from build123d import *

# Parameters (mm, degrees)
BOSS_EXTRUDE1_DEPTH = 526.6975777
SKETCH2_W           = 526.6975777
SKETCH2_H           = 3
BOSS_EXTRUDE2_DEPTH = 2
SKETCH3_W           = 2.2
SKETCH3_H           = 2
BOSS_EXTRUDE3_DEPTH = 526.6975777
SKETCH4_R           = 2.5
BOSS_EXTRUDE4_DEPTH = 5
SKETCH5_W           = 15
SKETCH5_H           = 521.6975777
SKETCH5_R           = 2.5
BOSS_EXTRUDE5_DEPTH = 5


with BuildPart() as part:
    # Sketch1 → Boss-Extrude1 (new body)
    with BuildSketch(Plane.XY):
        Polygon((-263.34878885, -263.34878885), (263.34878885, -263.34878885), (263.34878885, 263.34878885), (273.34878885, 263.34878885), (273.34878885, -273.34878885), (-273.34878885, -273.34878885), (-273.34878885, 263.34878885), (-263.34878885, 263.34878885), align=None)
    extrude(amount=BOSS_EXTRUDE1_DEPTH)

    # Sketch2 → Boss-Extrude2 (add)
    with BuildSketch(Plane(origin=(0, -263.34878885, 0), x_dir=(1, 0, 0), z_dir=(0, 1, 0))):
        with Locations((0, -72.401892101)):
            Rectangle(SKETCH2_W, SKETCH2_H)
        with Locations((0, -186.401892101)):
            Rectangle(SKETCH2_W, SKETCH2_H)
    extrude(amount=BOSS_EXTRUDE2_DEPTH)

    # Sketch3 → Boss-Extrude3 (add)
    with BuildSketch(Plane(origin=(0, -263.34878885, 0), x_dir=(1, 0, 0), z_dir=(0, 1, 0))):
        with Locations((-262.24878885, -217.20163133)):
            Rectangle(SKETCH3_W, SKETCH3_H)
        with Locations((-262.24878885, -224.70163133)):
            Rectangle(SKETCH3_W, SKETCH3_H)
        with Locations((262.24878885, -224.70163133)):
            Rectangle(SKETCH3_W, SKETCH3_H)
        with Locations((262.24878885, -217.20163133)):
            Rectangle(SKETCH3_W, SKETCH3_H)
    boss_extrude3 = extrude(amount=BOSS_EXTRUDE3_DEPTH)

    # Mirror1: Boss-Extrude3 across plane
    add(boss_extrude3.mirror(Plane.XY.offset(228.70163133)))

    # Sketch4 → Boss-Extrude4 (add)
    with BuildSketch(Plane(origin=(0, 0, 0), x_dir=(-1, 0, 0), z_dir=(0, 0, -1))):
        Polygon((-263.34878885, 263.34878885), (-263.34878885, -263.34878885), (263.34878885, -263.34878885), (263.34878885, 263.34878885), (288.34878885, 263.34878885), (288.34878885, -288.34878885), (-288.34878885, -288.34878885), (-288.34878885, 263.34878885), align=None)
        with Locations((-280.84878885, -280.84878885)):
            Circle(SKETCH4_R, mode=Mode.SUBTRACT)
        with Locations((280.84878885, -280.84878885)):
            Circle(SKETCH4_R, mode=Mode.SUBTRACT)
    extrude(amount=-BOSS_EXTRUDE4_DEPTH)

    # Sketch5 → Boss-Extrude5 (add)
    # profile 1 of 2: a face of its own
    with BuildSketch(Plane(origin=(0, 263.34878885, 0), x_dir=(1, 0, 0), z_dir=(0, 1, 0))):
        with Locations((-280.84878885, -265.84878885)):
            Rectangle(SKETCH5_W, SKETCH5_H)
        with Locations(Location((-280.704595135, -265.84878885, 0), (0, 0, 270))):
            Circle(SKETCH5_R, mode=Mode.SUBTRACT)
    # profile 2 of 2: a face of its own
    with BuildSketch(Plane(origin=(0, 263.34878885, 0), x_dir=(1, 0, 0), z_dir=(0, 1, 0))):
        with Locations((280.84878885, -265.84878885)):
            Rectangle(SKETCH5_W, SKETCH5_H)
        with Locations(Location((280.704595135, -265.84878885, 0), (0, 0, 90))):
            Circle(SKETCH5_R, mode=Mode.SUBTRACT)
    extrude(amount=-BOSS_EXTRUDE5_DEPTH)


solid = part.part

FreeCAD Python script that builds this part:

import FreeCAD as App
import Part
import Sketcher
from FreeCAD import Vector
Q = App.Units.Quantity


def add_polygon(sketch, points):
    """Adds a closed chain of lines whose ends are joined by coincident constraints."""
    first, n = sketch.GeometryCount, len(points)
    for a, b in zip(points, points[1:] + points[:1]):
        sketch.addGeometry(Part.LineSegment(App.Vector(*a, 0), App.Vector(*b, 0)), False)
    for i in range(n):
        sketch.addConstraint(Sketcher.Constraint("Coincident", first + i, 2, first + (i + 1) % n, 1))

doc = App.newDocument("Part")
body = doc.addObject("PartDesign::Body", "Body")

# Sketch on XY plane
sketch1 = doc.addObject("Sketcher::SketchObject", "Sketch")
body.addObject(sketch1)
sketch1.AttachmentSupport = (doc.XY_Plane, [""])
sketch1.MapMode = "FlatFace"
add_polygon(sketch1, [(263.348789, -263.348789), (-263.348789, -263.348789), (-263.348789, 263.348789), (-273.348789, 263.348789), (-273.348789, -273.348789), (273.348789, -273.348789), (273.348789, 263.348789), (263.348789, 263.348789)])  # lines 0-7
sketch1.addConstraint(Sketcher.Constraint("Horizontal", 0))
sketch1.addConstraint(Sketcher.Constraint("Vertical", 1))
sketch1.addConstraint(Sketcher.Constraint("Horizontal", 2))
sketch1.addConstraint(Sketcher.Constraint("Vertical", 3))
sketch1.addConstraint(Sketcher.Constraint("Horizontal", 4))
sketch1.addConstraint(Sketcher.Constraint("Vertical", 5))
sketch1.addConstraint(Sketcher.Constraint("Horizontal", 6))
sketch1.addConstraint(Sketcher.Constraint("Vertical", 7))
sketch1.addConstraint(Sketcher.Constraint("Symmetric", 0, 2, 6, 2, -1, 1))
sketch1.addConstraint(Sketcher.Constraint("Symmetric", 2, 2, 5, 2, -2))
sketch1.addConstraint(Sketcher.Constraint("Equal", 0, 1))
sketch1.addConstraint(Sketcher.Constraint("DistanceX", 2, 2, 2, 1, Q("10 mm")))
sketch1.addConstraint(Sketcher.Constraint("DistanceY", 3, 2, 0, 2, Q("10 mm")))
sketch1.addConstraint(Sketcher.Constraint("DistanceX", 0, 2, 0, 1, Q("526.697578 mm")))
pad1 = doc.addObject("PartDesign::Pad", "Pad")
body.addObject(pad1)
pad1.Profile = sketch1
pad1.Length = 526.697578

# Sketch on XZ plane
sketch2 = doc.addObject("Sketcher::SketchObject", "Sketch001")
body.addObject(sketch2)
sketch2.AttachmentSupport = (doc.XZ_Plane, [""])
sketch2.MapMode = "FlatFace"
sketch2.AttachmentOffset = App.Placement(Vector(0, 0, 263.348789), App.Rotation())
add_polygon(sketch2, [(-263.348789, 70.901892), (-263.348789, 73.901892), (263.348789, 73.901892), (263.348789, 70.901892)])  # lines 0-3
add_polygon(sketch2, [(-263.348789, 184.901892), (-263.348789, 187.901892), (263.348789, 187.901892), (263.348789, 184.901892)])  # lines 4-7
sketch2.addConstraint(Sketcher.Constraint("Vertical", 0))
sketch2.addConstraint(Sketcher.Constraint("Horizontal", 1))
sketch2.addConstraint(Sketcher.Constraint("Vertical", 2))
sketch2.addConstraint(Sketcher.Constraint("Horizontal", 3))
sketch2.addConstraint(Sketcher.Constraint("Vertical", 4))
sketch2.addConstraint(Sketcher.Constraint("Horizontal", 5))
sketch2.addConstraint(Sketcher.Constraint("Vertical", 6))
sketch2.addConstraint(Sketcher.Constraint("Horizontal", 7))
sketch2.addConstraint(Sketcher.Constraint("Vertical", 3, 2, 4, 2))
sketch2.addConstraint(Sketcher.Constraint("Vertical", 2, 2, 5, 2))
sketch2.addConstraint(Sketcher.Constraint("Equal", 2, 4))
sketch2.addConstraint(Sketcher.Constraint("DistanceY", 0, 1, 0, 2, Q("3 mm")))
sketch2.addConstraint(Sketcher.Constraint("DistanceY", 0, 2, 4, 2, Q("114 mm")))
sketch2.addConstraint(Sketcher.Constraint("DistanceX", 1, 1, 1, 2, Q("526.697578 mm")))
sketch2.addConstraint(Sketcher.Constraint("DistanceX", 0, 2, -1, 1, Q("263.348789 mm")))
sketch2.addConstraint(Sketcher.Constraint("DistanceY", -1, 1, 0, 2, Q("73.901892 mm")))
pad2 = doc.addObject("PartDesign::Pad", "Pad001")
body.addObject(pad2)
pad2.Profile = sketch2
pad2.Length = 2
pad2.Reversed = True

# Sketch on XZ plane
sketch3 = doc.addObject("Sketcher::SketchObject", "Sketch002")
body.addObject(sketch3)
sketch3.AttachmentSupport = (doc.XZ_Plane, [""])
sketch3.MapMode = "FlatFace"
sketch3.AttachmentOffset = App.Placement(Vector(0, 0, 263.348789), App.Rotation())
add_polygon(sketch3, [(-263.348789, 216.201631), (-263.348789, 218.201631), (-261.148789, 218.201631), (-261.148789, 216.201631)])  # lines 0-3
add_polygon(sketch3, [(-263.348789, 223.701631), (-263.348789, 225.701631), (-261.148789, 225.701631), (-261.148789, 223.701631)])  # lines 4-7
add_polygon(sketch3, [(261.148789, 223.701631), (261.148789, 225.701631), (263.348789, 225.701631), (263.348789, 223.701631)])  # lines 8-11
add_polygon(sketch3, [(261.148789, 216.201631), (261.148789, 218.201631), (263.348789, 218.201631), (263.348789, 216.201631)])  # lines 12-15
sketch3.addConstraint(Sketcher.Constraint("Vertical", 0))
sketch3.addConstraint(Sketcher.Constraint("Horizontal", 1))
sketch3.addConstraint(Sketcher.Constraint("Vertical", 2))
sketch3.addConstraint(Sketcher.Constraint("Horizontal", 3))
sketch3.addConstraint(Sketcher.Constraint("Vertical", 4))
sketch3.addConstraint(Sketcher.Constraint("Horizontal", 5))
sketch3.addConstraint(Sketcher.Constraint("Vertical", 6))
sketch3.addConstraint(Sketcher.Constraint("Horizontal", 7))
sketch3.addConstraint(Sketcher.Constraint("Vertical", 8))
sketch3.addConstraint(Sketcher.Constraint("Horizontal", 9))
sketch3.addConstraint(Sketcher.Constraint("Vertical", 10))
sketch3.addConstraint(Sketcher.Constraint("Horizontal", 11))
sketch3.addConstraint(Sketcher.Constraint("Vertical", 12))
sketch3.addConstraint(Sketcher.Constraint("Horizontal", 13))
sketch3.addConstraint(Sketcher.Constraint("Vertical", 14))
sketch3.addConstraint(Sketcher.Constraint("Horizontal", 15))
sketch3.addConstraint(Sketcher.Constraint("Symmetric", 5, 2, 8, 2, -2))
sketch3.addConstraint(Sketcher.Constraint("Symmetric", 7, 2, 10, 2, -2))
sketch3.addConstraint(Sketcher.Constraint("Symmetric", 1, 2, 12, 2, -2))
sketch3.addConstraint(Sketcher.Constraint("Symmetric", 3, 2, 14, 2, -2))
sketch3.addConstraint(Sketcher.Constraint("Vertical", 3, 2, 4, 2))
sketch3.addConstraint(Sketcher.Constraint("Vertical", 2, 2, 5, 2))
sketch3.addConstraint(Sketcher.Constraint("Equal", 2, 4))
sketch3.addConstraint(Sketcher.Constraint("DistanceY", 0, 1, 0, 2, Q("2 mm")))
sketch3.addConstraint(Sketcher.Constraint("DistanceX", 1, 1, 1, 2, Q("2.2 mm")))
sketch3.addConstraint(Sketcher.Constraint("DistanceY", 0, 2, 4, 2, Q("7.5 mm")))
sketch3.addConstraint(Sketcher.Constraint("DistanceX", 0, 2, -1, 1, Q("263.348789 mm")))
sketch3.addConstraint(Sketcher.Constraint("DistanceY", -1, 1, 0, 2, Q("218.201631 mm")))
pad3 = doc.addObject("PartDesign::Pad", "Pad002")
body.addObject(pad3)
pad3.Profile = sketch3
pad3.Length = 526.697578
pad3.Reversed = True
doc.recompute()

datumplane = doc.addObject("PartDesign::Plane", "DatumPlane")
body.addObject(datumplane)
datumplane.AttachmentSupport = (doc.XY_Plane, [""])
datumplane.MapMode = "FlatFace"
datumplane.AttachmentOffset = App.Placement(Vector(0, 0, 228.701631), App.Rotation())
mirrored = doc.addObject("PartDesign::Mirrored", "Mirrored")
body.addObject(mirrored)
mirrored.Originals = [pad3]
mirrored.MirrorPlane = (datumplane, [""])
body.Tip = mirrored

# Sketch on XY plane
sketch4 = doc.addObject("Sketcher::SketchObject", "Sketch003")
body.addObject(sketch4)
sketch4.AttachmentSupport = (doc.XY_Plane, [""])
sketch4.MapMode = "FlatFace"
add_polygon(sketch4, [(263.348789, -263.348789), (263.348789, 263.348789), (288.348789, 263.348789), (288.348789, -288.348789), (-288.348789, -288.348789), (-288.348789, 263.348789), (-263.348789, 263.348789), (-263.348789, -263.348789)])  # lines 0-7
sketch4.addGeometry(Part.Circle(Vector(-280.848789, -280.848789, 0), Vector(0, 0, 1), 2.5), False)  # 8
sketch4.addGeometry(Part.Circle(Vector(280.848789, -280.848789, 0), Vector(0, 0, 1), 2.5), False)  # 9
sketch4.addConstraint(Sketcher.Constraint("Vertical", 0))
sketch4.addConstraint(Sketcher.Constraint("Horizontal", 1))
sketch4.addConstraint(Sketcher.Constraint("Vertical", 2))
sketch4.addConstraint(Sketcher.Constraint("Horizontal", 3))
sketch4.addConstraint(Sketcher.Constraint("Vertical", 4))
sketch4.addConstraint(Sketcher.Constraint("Horizontal", 5))
sketch4.addConstraint(Sketcher.Constraint("Vertical", 6))
sketch4.addConstraint(Sketcher.Constraint("Horizontal", 7))
sketch4.addConstraint(Sketcher.Constraint("Equal", 8, 9))
sketch4.addConstraint(Sketcher.Constraint("Symmetric", 0, 2, 6, 2, -1, 1))
sketch4.addConstraint(Sketcher.Constraint("Symmetric", 8, 3, 9, 3, -2))
sketch4.addConstraint(Sketcher.Constraint("Symmetric", 1, 2, 4, 2, -2))
sketch4.addConstraint(Sketcher.Constraint("Equal", 7, 0))
sketch4.addConstraint(Sketcher.Constraint("Diameter", 8, Q("5 mm")))
sketch4.addConstraint(Sketcher.Constraint("DistanceX", 1, 1, 1, 2, Q("25 mm")))
sketch4.addConstraint(Sketcher.Constraint("DistanceY", 3, 2, 6, 2, Q("25 mm")))
sketch4.addConstraint(Sketcher.Constraint("DistanceX", 0, 2, 9, 3, Q("17.5 mm")))
sketch4.addConstraint(Sketcher.Constraint("DistanceY", 2, 2, 9, 3, Q("7.5 mm")))
sketch4.addConstraint(Sketcher.Constraint("DistanceX", 3, 2, 3, 1, Q("576.697578 mm")))
pad4 = doc.addObject("PartDesign::Pad", "Pad003")
body.addObject(pad4)
pad4.Profile = sketch4
pad4.Length = 5

# Sketch on XZ plane
sketch5 = doc.addObject("Sketcher::SketchObject", "Sketch004")
body.addObject(sketch5)
sketch5.AttachmentSupport = (doc.XZ_Plane, [""])
sketch5.MapMode = "FlatFace"
sketch5.AttachmentOffset = App.Placement(Vector(0, 0, -263.348789), App.Rotation())
add_polygon(sketch5, [(-288.348789, 5), (-288.348789, 526.697578), (-273.348789, 526.697578), (-273.348789, 5)])  # lines 0-3
sketch5.addGeometry(Part.Circle(Vector(-280.704595, 265.848789, 0), Vector(0, 0, 1), 2.5), False)  # 4
add_polygon(sketch5, [(273.348789, 5), (273.348789, 526.697578), (288.348789, 526.697578), (288.348789, 5)])  # lines 5-8
sketch5.addGeometry(Part.Circle(Vector(280.704595, 265.848789, 0), Vector(0, 0, 1), 2.5), False)  # 9
sketch5.addConstraint(Sketcher.Constraint("Vertical", 0))
sketch5.addConstraint(Sketcher.Constraint("Horizontal", 1))
sketch5.addConstraint(Sketcher.Constraint("Vertical", 2))
sketch5.addConstraint(Sketcher.Constraint("Horizontal", 3))
sketch5.addConstraint(Sketcher.Constraint("Vertical", 5))
sketch5.addConstraint(Sketcher.Constraint("Horizontal", 6))
sketch5.addConstraint(Sketcher.Constraint("Vertical", 7))
sketch5.addConstraint(Sketcher.Constraint("Horizontal", 8))
sketch5.addConstraint(Sketcher.Constraint("Equal", 4, 9))
sketch5.addConstraint(Sketcher.Constraint("Symmetric", 4, 3, 9, 3, -2))
sketch5.addConstraint(Sketcher.Constraint("Symmetric", 1, 2, 5, 2, -2))
sketch5.addConstraint(Sketcher.Constraint("Symmetric", 3, 2, 7, 2, -2))
sketch5.addConstraint(Sketcher.Constraint("Diameter", 4, Q("5 mm")))
sketch5.addConstraint(Sketcher.Constraint("DistanceX", 1, 1, 1, 2, Q("15 mm")))
sketch5.addConstraint(Sketcher.Constraint("DistanceY", -1, 1, 2, 2, Q("5 mm")))
sketch5.addConstraint(Sketcher.Constraint("DistanceY", 0, 1, 0, 2, Q("521.697578 mm")))
sketch5.addConstraint(Sketcher.Constraint("DistanceY", -1, 1, 4, 3, Q("265.848789 mm")))
sketch5.addConstraint(Sketcher.Constraint("DistanceX", 0, 2, -1, 1, Q("288.348789 mm")))
sketch5.addConstraint(Sketcher.Constraint("DistanceX", 4, 3, 9, 3, Q("561.40919 mm")))
pad5 = doc.addObject("PartDesign::Pad", "Pad004")
body.addObject(pad5)
pad5.Profile = sketch5
pad5.Length = 5

doc.recompute()
